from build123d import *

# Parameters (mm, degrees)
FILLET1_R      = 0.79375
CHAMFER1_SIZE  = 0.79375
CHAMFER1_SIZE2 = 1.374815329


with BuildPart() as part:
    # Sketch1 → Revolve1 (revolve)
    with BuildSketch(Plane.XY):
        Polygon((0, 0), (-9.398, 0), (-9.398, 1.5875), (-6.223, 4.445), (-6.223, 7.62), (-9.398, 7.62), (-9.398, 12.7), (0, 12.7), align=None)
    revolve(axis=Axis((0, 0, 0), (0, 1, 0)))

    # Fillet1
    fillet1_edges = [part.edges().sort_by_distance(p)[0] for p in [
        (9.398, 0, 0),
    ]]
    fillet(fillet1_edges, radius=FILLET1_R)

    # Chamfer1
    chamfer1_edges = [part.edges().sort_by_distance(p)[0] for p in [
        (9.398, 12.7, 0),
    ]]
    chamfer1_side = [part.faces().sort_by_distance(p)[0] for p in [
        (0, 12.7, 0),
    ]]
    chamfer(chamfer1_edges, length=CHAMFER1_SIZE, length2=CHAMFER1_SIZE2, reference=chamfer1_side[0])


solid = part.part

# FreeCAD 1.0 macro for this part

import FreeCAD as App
import Part
import Sketcher
from FreeCAD import Vector
Q = App.Units.Quantity


def edges_at(feature, points):
    """Names of the edges that pass closest to the given points."""
    edges = feature.Shape.Edges
    near = lambda p: min(range(len(edges)), key=lambda i: edges[i].distToShape(Part.Vertex(*p))[0])
    return sorted({f"Edge{near(p) + 1}" for p in points})


def add_polygon(sketch, points):
    """Adds a closed chain of lines whose ends are joined by coincident constraints."""
    first, n = sketch.GeometryCount, len(points)
    for a, b in zip(points, points[1:] + points[:1]):
        sketch.addGeometry(Part.LineSegment(App.Vector(*a, 0), App.Vector(*b, 0)), False)
    for i in range(n):
        sketch.addConstraint(Sketcher.Constraint("Coincident", first + i, 2, first + (i + 1) % n, 1))

doc = App.newDocument("Part")
body = doc.addObject("PartDesign::Body", "Body")

sketch1 = body.newObject("Sketcher::SketchObject", "Sketch")
sketch1.AttachmentSupport = (doc.getObject("XY_Plane"), [""])
sketch1.MapMode = "FlatFace"
add_polygon(sketch1, [(-9.4, 0), (0, 0), (0, 12.7), (-9.4, 12.7), (-9.4, 7.6), (-6.2, 7.6), (-6.2, 4.4), (-9.4, 1.6)])
sketch1.addConstraint([
    Sketcher.Constraint("Horizontal", 0),
    Sketcher.Constraint("Vertical", 1),
    Sketcher.Constraint("Horizontal", 2),
    Sketcher.Constraint("Vertical", 3),
    Sketcher.Constraint("Horizontal", 4),
    Sketcher.Constraint("Vertical", 5),
    Sketcher.Constraint("Vertical", 7),
    Sketcher.Constraint("Coincident", 0, 2, -1, 1),
    Sketcher.Constraint("Vertical", 3, 2, 6, 2),
    Sketcher.Constraint("Equal", 4, 5),
    Sketcher.Constraint("DistanceY", 1, 1, 1, 2, Q("0.5 in")),
    Sketcher.Constraint("DistanceY", 3, 2, 3, 1, Q("0.2 in")),
    Sketcher.Constraint("DistanceX", 0, 1, 0, 2, Q("0.37 in")),
    Sketcher.Constraint("DistanceX", 4, 1, 4, 2, Q("0.125 in")),
    Sketcher.Constraint("DistanceY", 7, 2, 7, 1, Q("0.0625 in")),
])
revolution = body.newObject("PartDesign::Revolution", "Revolution")
revolution.Profile = sketch1
revolution.ReferenceAxis = (sketch1, ["V_Axis"])
revolution.Angle = 360
doc.recompute()

fillet = body.newObject("PartDesign::Fillet", "Fillet")
fillet.Base = (revolution, edges_at(revolution, [(9.398, 0, 0)]))
fillet.Radius = Q("0.03125 in")
doc.recompute()

chamfer = body.newObject("PartDesign::Chamfer", "Chamfer")
chamfer.Base = (fillet, edges_at(fillet, [(9.398, 12.7, 0)]))
chamfer.ChamferType = "Two distances"
chamfer.Size = Q("0.03125 in")
chamfer.Size2 = 1.374815
chamfer.FlipDirection = True

doc.recompute()
